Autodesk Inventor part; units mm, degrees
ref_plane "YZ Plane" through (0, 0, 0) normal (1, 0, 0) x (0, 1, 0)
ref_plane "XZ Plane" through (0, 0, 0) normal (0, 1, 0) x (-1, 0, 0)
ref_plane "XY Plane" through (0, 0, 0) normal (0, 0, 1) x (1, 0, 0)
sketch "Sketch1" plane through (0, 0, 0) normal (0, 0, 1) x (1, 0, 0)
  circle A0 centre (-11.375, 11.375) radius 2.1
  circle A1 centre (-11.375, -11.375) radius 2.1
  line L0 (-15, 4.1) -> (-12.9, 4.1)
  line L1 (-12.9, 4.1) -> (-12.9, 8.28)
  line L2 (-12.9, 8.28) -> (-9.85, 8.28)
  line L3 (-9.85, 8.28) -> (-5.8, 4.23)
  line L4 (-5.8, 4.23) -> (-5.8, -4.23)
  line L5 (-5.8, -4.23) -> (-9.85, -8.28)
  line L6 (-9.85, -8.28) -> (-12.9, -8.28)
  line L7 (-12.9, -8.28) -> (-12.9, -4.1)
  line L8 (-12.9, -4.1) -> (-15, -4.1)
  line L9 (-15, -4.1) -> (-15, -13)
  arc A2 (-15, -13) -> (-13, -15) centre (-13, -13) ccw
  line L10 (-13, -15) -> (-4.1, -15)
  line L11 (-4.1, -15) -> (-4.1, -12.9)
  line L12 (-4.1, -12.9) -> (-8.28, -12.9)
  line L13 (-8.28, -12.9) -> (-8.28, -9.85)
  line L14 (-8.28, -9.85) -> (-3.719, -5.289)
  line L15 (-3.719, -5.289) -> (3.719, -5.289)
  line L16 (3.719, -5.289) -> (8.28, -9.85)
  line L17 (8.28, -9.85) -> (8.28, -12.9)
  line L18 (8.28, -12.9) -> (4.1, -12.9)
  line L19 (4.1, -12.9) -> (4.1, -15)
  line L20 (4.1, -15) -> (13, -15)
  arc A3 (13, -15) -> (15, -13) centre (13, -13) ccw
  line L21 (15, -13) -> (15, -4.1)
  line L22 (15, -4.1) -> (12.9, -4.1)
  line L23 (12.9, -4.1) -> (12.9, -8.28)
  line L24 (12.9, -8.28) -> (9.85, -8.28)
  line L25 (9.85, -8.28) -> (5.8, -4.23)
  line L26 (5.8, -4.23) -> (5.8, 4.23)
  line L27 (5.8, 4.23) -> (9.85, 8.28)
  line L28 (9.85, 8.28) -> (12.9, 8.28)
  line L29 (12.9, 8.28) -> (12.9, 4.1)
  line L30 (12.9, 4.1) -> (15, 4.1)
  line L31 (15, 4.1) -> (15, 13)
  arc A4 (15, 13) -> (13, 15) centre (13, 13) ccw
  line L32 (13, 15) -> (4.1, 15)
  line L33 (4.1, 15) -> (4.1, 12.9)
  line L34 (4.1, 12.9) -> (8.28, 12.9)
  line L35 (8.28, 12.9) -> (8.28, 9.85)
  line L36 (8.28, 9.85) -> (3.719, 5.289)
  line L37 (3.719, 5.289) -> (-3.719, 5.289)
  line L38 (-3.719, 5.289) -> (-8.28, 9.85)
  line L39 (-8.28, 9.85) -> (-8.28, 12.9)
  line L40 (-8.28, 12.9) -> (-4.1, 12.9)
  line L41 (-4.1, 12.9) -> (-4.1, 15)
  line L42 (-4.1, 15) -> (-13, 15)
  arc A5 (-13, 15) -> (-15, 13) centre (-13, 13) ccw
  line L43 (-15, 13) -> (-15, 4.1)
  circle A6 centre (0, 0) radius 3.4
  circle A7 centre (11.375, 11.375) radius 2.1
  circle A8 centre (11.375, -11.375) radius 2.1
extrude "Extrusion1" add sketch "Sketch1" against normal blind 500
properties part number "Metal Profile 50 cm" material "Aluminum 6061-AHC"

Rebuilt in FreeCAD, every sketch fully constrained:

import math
import FreeCAD as App
import Part
import Sketcher

doc = App.newDocument("Part")
body = doc.addObject("PartDesign::Body", "Body")

# Sketch on XY plane
sketch1 = body.newObject("Sketcher::SketchObject", "Sketch")
sketch1.AttachmentSupport = (doc.getObject("XY_Plane"), [""])
sketch1.MapMode = "FlatFace"
sketch1.addGeometry(Part.LineSegment(App.Vector(-15, 13, 0), App.Vector(-15, 4.1, 0)), False)
sketch1.addGeometry(Part.LineSegment(App.Vector(-15, 4.1, 0), App.Vector(-12.9, 4.1, 0)), False)
sketch1.addGeometry(Part.LineSegment(App.Vector(-12.9, 4.1, 0), App.Vector(-12.9, 8.3, 0)), False)
sketch1.addGeometry(Part.LineSegment(App.Vector(-12.9, 8.3, 0), App.Vector(-9.8, 8.3, 0)), False)
sketch1.addGeometry(Part.LineSegment(App.Vector(-9.8, 8.3, 0), App.Vector(-5.8, 4.2, 0)), False)
sketch1.addGeometry(Part.LineSegment(App.Vector(-5.8, 4.2, 0), App.Vector(-5.8, -4.2, 0)), False)
sketch1.addGeometry(Part.LineSegment(App.Vector(-5.8, -4.2, 0), App.Vector(-9.8, -8.3, 0)), False)
sketch1.addGeometry(Part.LineSegment(App.Vector(-9.8, -8.3, 0), App.Vector(-12.9, -8.3, 0)), False)
sketch1.addGeometry(Part.LineSegment(App.Vector(-12.9, -8.3, 0), App.Vector(-12.9, -4.1, 0)), False)
sketch1.addGeometry(Part.LineSegment(App.Vector(-12.9, -4.1, 0), App.Vector(-15, -4.1, 0)), False)
sketch1.addGeometry(Part.LineSegment(App.Vector(-15, -4.1, 0), App.Vector(-15, -13, 0)), False)
sketch1.addGeometry(Part.ArcOfCircle(Part.Circle(App.Vector(-13, -13, 0), App.Vector(0, 0, 1), 2), math.radians(180), math.radians(270)), False)
sketch1.addGeometry(Part.LineSegment(App.Vector(-13, -15, 0), App.Vector(-4.1, -15, 0)), False)
sketch1.addGeometry(Part.LineSegment(App.Vector(-4.1, -15, 0), App.Vector(-4.1, -12.9, 0)), False)
sketch1.addGeometry(Part.LineSegment(App.Vector(-4.1, -12.9, 0), App.Vector(-8.3, -12.9, 0)), False)
sketch1.addGeometry(Part.LineSegment(App.Vector(-8.3, -12.9, 0), App.Vector(-8.3, -9.8, 0)), False)
sketch1.addGeometry(Part.LineSegment(App.Vector(-8.3, -9.8, 0), App.Vector(-3.7, -5.3, 0)), False)
sketch1.addGeometry(Part.LineSegment(App.Vector(-3.7, -5.3, 0), App.Vector(3.7, -5.3, 0)), False)
sketch1.addGeometry(Part.LineSegment(App.Vector(3.7, -5.3, 0), App.Vector(8.3, -9.8, 0)), False)
sketch1.addGeometry(Part.LineSegment(App.Vector(8.3, -9.8, 0), App.Vector(8.3, -12.9, 0)), False)
sketch1.addGeometry(Part.LineSegment(App.Vector(8.3, -12.9, 0), App.Vector(4.1, -12.9, 0)), False)
sketch1.addGeometry(Part.LineSegment(App.Vector(4.1, -12.9, 0), App.Vector(4.1, -15, 0)), False)
sketch1.addGeometry(Part.LineSegment(App.Vector(4.1, -15, 0), App.Vector(13, -15, 0)), False)
sketch1.addGeometry(Part.ArcOfCircle(Part.Circle(App.Vector(13, -13, 0), App.Vector(0, 0, 1), 2), math.radians(-90), math.radians(0)), False)
sketch1.addGeometry(Part.LineSegment(App.Vector(15, -13, 0), App.Vector(15, -4.1, 0)), False)
sketch1.addGeometry(Part.LineSegment(App.Vector(15, -4.1, 0), App.Vector(12.9, -4.1, 0)), False)
sketch1.addGeometry(Part.LineSegment(App.Vector(12.9, -4.1, 0), App.Vector(12.9, -8.3, 0)), False)
sketch1.addGeometry(Part.LineSegment(App.Vector(12.9, -8.3, 0), App.Vector(9.8, -8.3, 0)), False)
sketch1.addGeometry(Part.LineSegment(App.Vector(9.8, -8.3, 0), App.Vector(5.8, -4.2, 0)), False)
sketch1.addGeometry(Part.LineSegment(App.Vector(5.8, -4.2, 0), App.Vector(5.8, 4.2, 0)), False)
sketch1.addGeometry(Part.LineSegment(App.Vector(5.8, 4.2, 0), App.Vector(9.8, 8.3, 0)), False)
sketch1.addGeometry(Part.LineSegment(App.Vector(9.8, 8.3, 0), App.Vector(12.9, 8.3, 0)), False)
sketch1.addGeometry(Part.LineSegment(App.Vector(12.9, 8.3, 0), App.Vector(12.9, 4.1, 0)), False)
sketch1.addGeometry(Part.LineSegment(App.Vector(12.9, 4.1, 0), App.Vector(15, 4.1, 0)), False)
sketch1.addGeometry(Part.LineSegment(App.Vector(15, 4.1, 0), App.Vector(15, 13, 0)), False)
sketch1.addGeometry(Part.ArcOfCircle(Part.Circle(App.Vector(13, 13, 0), App.Vector(0, 0, 1), 2), math.radians(0), math.radians(90)), False)
sketch1.addGeometry(Part.LineSegment(App.Vector(13, 15, 0), App.Vector(4.1, 15, 0)), False)
sketch1.addGeometry(Part.LineSegment(App.Vector(4.1, 15, 0), App.Vector(4.1, 12.9, 0)), False)
sketch1.addGeometry(Part.LineSegment(App.Vector(4.1, 12.9, 0), App.Vector(8.3, 12.9, 0)), False)
sketch1.addGeometry(Part.LineSegment(App.Vector(8.3, 12.9, 0), App.Vector(8.3, 9.8, 0)), False)
sketch1.addGeometry(Part.LineSegment(App.Vector(8.3, 9.8, 0), App.Vector(3.7, 5.3, 0)), False)
sketch1.addGeometry(Part.LineSegment(App.Vector(3.7, 5.3, 0), App.Vector(-3.7, 5.3, 0)), False)
sketch1.addGeometry(Part.LineSegment(App.Vector(-3.7, 5.3, 0), App.Vector(-8.3, 9.8, 0)), False)
sketch1.addGeometry(Part.LineSegment(App.Vector(-8.3, 9.8, 0), App.Vector(-8.3, 12.9, 0)), False)
sketch1.addGeometry(Part.LineSegment(App.Vector(-8.3, 12.9, 0), App.Vector(-4.1, 12.9, 0)), False)
sketch1.addGeometry(Part.LineSegment(App.Vector(-4.1, 12.9, 0), App.Vector(-4.1, 15, 0)), False)
sketch1.addGeometry(Part.LineSegment(App.Vector(-4.1, 15, 0), App.Vector(-13, 15, 0)), False)
sketch1.addGeometry(Part.ArcOfCircle(Part.Circle(App.Vector(-13, 13, 0), App.Vector(0, 0, 1), 2), math.radians(90), math.radians(180)), False)
sketch1.addGeometry(Part.Circle(App.Vector(-11.4, -11.4, 0), App.Vector(0, 0, 1), 2.1), False)
sketch1.addGeometry(Part.Circle(App.Vector(11.4, -11.4, 0), App.Vector(0, 0, 1), 2.1), False)
sketch1.addGeometry(Part.Circle(App.Vector(-11.4, 11.4, 0), App.Vector(0, 0, 1), 2.1), False)
sketch1.addGeometry(Part.Circle(App.Vector(0, 0, 0), App.Vector(0, 0, 1), 3.4), False)
sketch1.addGeometry(Part.Circle(App.Vector(11.4, 11.4, 0), App.Vector(0, 0, 1), 2.1), False)
sketch1.addConstraint(Sketcher.Constraint("Coincident", 0, 2, 1, 1))
sketch1.addConstraint(Sketcher.Constraint("Coincident", 1, 2, 2, 1))
sketch1.addConstraint(Sketcher.Constraint("Coincident", 2, 2, 3, 1))
sketch1.addConstraint(Sketcher.Constraint("Coincident", 3, 2, 4, 1))
sketch1.addConstraint(Sketcher.Constraint("Coincident", 4, 2, 5, 1))
sketch1.addConstraint(Sketcher.Constraint("Coincident", 5, 2, 6, 1))
sketch1.addConstraint(Sketcher.Constraint("Coincident", 6, 2, 7, 1))
sketch1.addConstraint(Sketcher.Constraint("Coincident", 7, 2, 8, 1))
sketch1.addConstraint(Sketcher.Constraint("Coincident", 8, 2, 9, 1))
sketch1.addConstraint(Sketcher.Constraint("Coincident", 9, 2, 10, 1))
sketch1.addConstraint(Sketcher.Constraint("Tangent", 10, 2, 11, 1))
sketch1.addConstraint(Sketcher.Constraint("Tangent", 11, 2, 12, 1))
sketch1.addConstraint(Sketcher.Constraint("Coincident", 12, 2, 13, 1))
sketch1.addConstraint(Sketcher.Constraint("Coincident", 13, 2, 14, 1))
sketch1.addConstraint(Sketcher.Constraint("Coincident", 14, 2, 15, 1))
sketch1.addConstraint(Sketcher.Constraint("Coincident", 15, 2, 16, 1))
sketch1.addConstraint(Sketcher.Constraint("Coincident", 16, 2, 17, 1))
sketch1.addConstraint(Sketcher.Constraint("Coincident", 17, 2, 18, 1))
sketch1.addConstraint(Sketcher.Constraint("Coincident", 18, 2, 19, 1))
sketch1.addConstraint(Sketcher.Constraint("Coincident", 19, 2, 20, 1))
sketch1.addConstraint(Sketcher.Constraint("Coincident", 20, 2, 21, 1))
sketch1.addConstraint(Sketcher.Constraint("Coincident", 21, 2, 22, 1))
sketch1.addConstraint(Sketcher.Constraint("Tangent", 22, 2, 23, 1))
sketch1.addConstraint(Sketcher.Constraint("Tangent", 23, 2, 24, 1))
sketch1.addConstraint(Sketcher.Constraint("Coincident", 24, 2, 25, 1))
sketch1.addConstraint(Sketcher.Constraint("Coincident", 25, 2, 26, 1))
sketch1.addConstraint(Sketcher.Constraint("Coincident", 26, 2, 27, 1))
sketch1.addConstraint(Sketcher.Constraint("Coincident", 27, 2, 28, 1))
sketch1.addConstraint(Sketcher.Constraint("Coincident", 28, 2, 29, 1))
sketch1.addConstraint(Sketcher.Constraint("Coincident", 29, 2, 30, 1))
sketch1.addConstraint(Sketcher.Constraint("Coincident", 30, 2, 31, 1))
sketch1.addConstraint(Sketcher.Constraint("Coincident", 31, 2, 32, 1))
sketch1.addConstraint(Sketcher.Constraint("Coincident", 32, 2, 33, 1))
sketch1.addConstraint(Sketcher.Constraint("Coincident", 33, 2, 34, 1))
sketch1.addConstraint(Sketcher.Constraint("Tangent", 34, 2, 35, 1))
sketch1.addConstraint(Sketcher.Constraint("Tangent", 35, 2, 36, 1))
sketch1.addConstraint(Sketcher.Constraint("Coincident", 36, 2, 37, 1))
sketch1.addConstraint(Sketcher.Constraint("Coincident", 37, 2, 38, 1))
sketch1.addConstraint(Sketcher.Constraint("Coincident", 38, 2, 39, 1))
sketch1.addConstraint(Sketcher.Constraint("Coincident", 39, 2, 40, 1))
sketch1.addConstraint(Sketcher.Constraint("Coincident", 40, 2, 41, 1))
sketch1.addConstraint(Sketcher.Constraint("Coincident", 41, 2, 42, 1))
sketch1.addConstraint(Sketcher.Constraint("Coincident", 42, 2, 43, 1))
sketch1.addConstraint(Sketcher.Constraint("Coincident", 43, 2, 44, 1))
sketch1.addConstraint(Sketcher.Constraint("Coincident", 44, 2, 45, 1))
sketch1.addConstraint(Sketcher.Constraint("Coincident", 45, 2, 46, 1))
sketch1.addConstraint(Sketcher.Constraint("Tangent", 46, 2, 47, 1))
sketch1.addConstraint(Sketcher.Constraint("Tangent", 47, 2, 0, 1))
sketch1.addConstraint(Sketcher.Constraint("Vertical", 0))
sketch1.addConstraint(Sketcher.Constraint("Horizontal", 1))
sketch1.addConstraint(Sketcher.Constraint("Vertical", 2))
sketch1.addConstraint(Sketcher.Constraint("Horizontal", 3))
sketch1.addConstraint(Sketcher.Constraint("Vertical", 5))
sketch1.addConstraint(Sketcher.Constraint("Horizontal", 7))
sketch1.addConstraint(Sketcher.Constraint("Vertical", 8))
sketch1.addConstraint(Sketcher.Constraint("Horizontal", 9))
sketch1.addConstraint(Sketcher.Constraint("Vertical", 10))
sketch1.addConstraint(Sketcher.Constraint("Horizontal", 12))
sketch1.addConstraint(Sketcher.Constraint("Vertical", 13))
sketch1.addConstraint(Sketcher.Constraint("Horizontal", 14))
sketch1.addConstraint(Sketcher.Constraint("Vertical", 15))
sketch1.addConstraint(Sketcher.Constraint("Horizontal", 17))
sketch1.addConstraint(Sketcher.Constraint("Vertical", 19))
sketch1.addConstraint(Sketcher.Constraint("Horizontal", 20))
sketch1.addConstraint(Sketcher.Constraint("Vertical", 21))
sketch1.addConstraint(Sketcher.Constraint("Horizontal", 22))
sketch1.addConstraint(Sketcher.Constraint("Vertical", 24))
sketch1.addConstraint(Sketcher.Constraint("Horizontal", 25))
sketch1.addConstraint(Sketcher.Constraint("Vertical", 26))
sketch1.addConstraint(Sketcher.Constraint("Horizontal", 27))
sketch1.addConstraint(Sketcher.Constraint("Vertical", 29))
sketch1.addConstraint(Sketcher.Constraint("Horizontal", 31))
sketch1.addConstraint(Sketcher.Constraint("Vertical", 32))
sketch1.addConstraint(Sketcher.Constraint("Horizontal", 33))
sketch1.addConstraint(Sketcher.Constraint("Vertical", 34))
sketch1.addConstraint(Sketcher.Constraint("Horizontal", 36))
sketch1.addConstraint(Sketcher.Constraint("Vertical", 37))
sketch1.addConstraint(Sketcher.Constraint("Horizontal", 38))
sketch1.addConstraint(Sketcher.Constraint("Vertical", 39))
sketch1.addConstraint(Sketcher.Constraint("Horizontal", 41))
sketch1.addConstraint(Sketcher.Constraint("Vertical", 43))
sketch1.addConstraint(Sketcher.Constraint("Horizontal", 44))
sketch1.addConstraint(Sketcher.Constraint("Vertical", 45))
sketch1.addConstraint(Sketcher.Constraint("Horizontal", 46))
sketch1.addConstraint(Sketcher.Constraint("Coincident", 51, 3, -1, 1))
sketch1.addConstraint(Sketcher.Constraint("Equal", 11, 23))
sketch1.addConstraint(Sketcher.Constraint("Equal", 23, 35))
sketch1.addConstraint(Sketcher.Constraint("Equal", 35, 47))
sketch1.addConstraint(Sketcher.Constraint("Equal", 48, 49))
sketch1.addConstraint(Sketcher.Constraint("Equal", 49, 50))
sketch1.addConstraint(Sketcher.Constraint("Equal", 50, 52))
sketch1.addConstraint(Sketcher.Constraint("Symmetric", 11, 3, 35, 3, -1, 1))
sketch1.addConstraint(Sketcher.Constraint("Symmetric", 23, 3, 47, 3, -1, 1))
sketch1.addConstraint(Sketcher.Constraint("Symmetric", 49, 3, 50, 3, -1, 1))
sketch1.addConstraint(Sketcher.Constraint("Symmetric", 48, 3, 52, 3, -1, 1))
sketch1.addConstraint(Sketcher.Constraint("Symmetric", 1, 2, 25, 2, -1, 1))
sketch1.addConstraint(Sketcher.Constraint("Symmetric", 3, 2, 27, 2, -1, 1))
sketch1.addConstraint(Sketcher.Constraint("Symmetric", 4, 2, 28, 2, -1, 1))
sketch1.addConstraint(Sketcher.Constraint("Symmetric", 6, 2, 30, 2, -1, 1))
sketch1.addConstraint(Sketcher.Constraint("Symmetric", 8, 2, 32, 2, -1, 1))
sketch1.addConstraint(Sketcher.Constraint("Symmetric", 13, 2, 37, 2, -1, 1))
sketch1.addConstraint(Sketcher.Constraint("Symmetric", 15, 2, 39, 2, -1, 1))
sketch1.addConstraint(Sketcher.Constraint("Symmetric", 16, 2, 40, 2, -1, 1))
sketch1.addConstraint(Sketcher.Constraint("Symmetric", 18, 2, 42, 2, -1, 1))
sketch1.addConstraint(Sketcher.Constraint("Symmetric", 20, 2, 44, 2, -1, 1))
sketch1.addConstraint(Sketcher.Constraint("Symmetric", 11, 3, 23, 3, -2))
sketch1.addConstraint(Sketcher.Constraint("Symmetric", 48, 3, 49, 3, -2))
sketch1.addConstraint(Sketcher.Constraint("Symmetric", 15, 2, 18, 2, -2))
sketch1.addConstraint(Sketcher.Constraint("Symmetric", 13, 2, 20, 2, -2))
sketch1.addConstraint(Sketcher.Constraint("Symmetric", 8, 2, 25, 2, -2))
sketch1.addConstraint(Sketcher.Constraint("Symmetric", 6, 2, 27, 2, -2))
sketch1.addConstraint(Sketcher.Constraint("Perpendicular", 4, 6))
sketch1.addConstraint(Sketcher.Constraint("Parallel", 6, 16))
sketch1.addConstraint(Sketcher.Constraint("Perpendicular", 16, 18))
sketch1.addConstraint(Sketcher.Constraint("Perpendicular", 28, 30))
sketch1.addConstraint(Sketcher.Constraint("Perpendicular", 40, 42))
sketch1.addConstraint(Sketcher.Constraint("Horizontal", 5, 2, 28, 2))
sketch1.addConstraint(Sketcher.Constraint("Equal", 46, 0))
sketch1.addConstraint(Sketcher.Constraint("Equal", 44, 2))
sketch1.addConstraint(Sketcher.Constraint("Equal", 33, 13))
sketch1.addConstraint(Sketcher.Constraint("Equal", 31, 15))
sketch1.addConstraint(Sketcher.Constraint("Radius", 11, 2.0))
sketch1.addConstraint(Sketcher.Constraint("Diameter", 48, 4.2))
sketch1.addConstraint(Sketcher.Constraint("Diameter", 51, 6.8))
sketch1.addConstraint(Sketcher.Constraint("DistanceX", 1, 1, 1, 2, 2.1))
sketch1.addConstraint(Sketcher.Constraint("DistanceX", 12, 1, 12, 2, 8.9))
sketch1.addConstraint(Sketcher.Constraint("DistanceX", 11, 3, -1, 1, 13.0))
sketch1.addConstraint(Sketcher.Constraint("DistanceY", 11, 3, -1, 1, 13.0))
sketch1.addConstraint(Sketcher.Constraint("DistanceX", 3, 1, 3, 2, 3.05))
sketch1.addConstraint(Sketcher.Constraint("DistanceX", 14, 2, 14, 1, 4.18))
sketch1.addConstraint(Sketcher.Constraint("DistanceY", 5, 2, 5, 1, 8.46))
sketch1.addConstraint(Sketcher.Constraint("DistanceX", 17, 1, 17, 2, 7.438))
sketch1.addConstraint(Sketcher.Constraint("DistanceX", 48, 3, 49, 3, 22.75))
sketch1.addConstraint(Sketcher.Constraint("DistanceY", 48, 3, 50, 3, 22.75))
pad1 = body.newObject("PartDesign::Pad", "Pad")
pad1.Profile = sketch1
pad1.Length = 500
pad1.Reversed = True

doc.recompute()
